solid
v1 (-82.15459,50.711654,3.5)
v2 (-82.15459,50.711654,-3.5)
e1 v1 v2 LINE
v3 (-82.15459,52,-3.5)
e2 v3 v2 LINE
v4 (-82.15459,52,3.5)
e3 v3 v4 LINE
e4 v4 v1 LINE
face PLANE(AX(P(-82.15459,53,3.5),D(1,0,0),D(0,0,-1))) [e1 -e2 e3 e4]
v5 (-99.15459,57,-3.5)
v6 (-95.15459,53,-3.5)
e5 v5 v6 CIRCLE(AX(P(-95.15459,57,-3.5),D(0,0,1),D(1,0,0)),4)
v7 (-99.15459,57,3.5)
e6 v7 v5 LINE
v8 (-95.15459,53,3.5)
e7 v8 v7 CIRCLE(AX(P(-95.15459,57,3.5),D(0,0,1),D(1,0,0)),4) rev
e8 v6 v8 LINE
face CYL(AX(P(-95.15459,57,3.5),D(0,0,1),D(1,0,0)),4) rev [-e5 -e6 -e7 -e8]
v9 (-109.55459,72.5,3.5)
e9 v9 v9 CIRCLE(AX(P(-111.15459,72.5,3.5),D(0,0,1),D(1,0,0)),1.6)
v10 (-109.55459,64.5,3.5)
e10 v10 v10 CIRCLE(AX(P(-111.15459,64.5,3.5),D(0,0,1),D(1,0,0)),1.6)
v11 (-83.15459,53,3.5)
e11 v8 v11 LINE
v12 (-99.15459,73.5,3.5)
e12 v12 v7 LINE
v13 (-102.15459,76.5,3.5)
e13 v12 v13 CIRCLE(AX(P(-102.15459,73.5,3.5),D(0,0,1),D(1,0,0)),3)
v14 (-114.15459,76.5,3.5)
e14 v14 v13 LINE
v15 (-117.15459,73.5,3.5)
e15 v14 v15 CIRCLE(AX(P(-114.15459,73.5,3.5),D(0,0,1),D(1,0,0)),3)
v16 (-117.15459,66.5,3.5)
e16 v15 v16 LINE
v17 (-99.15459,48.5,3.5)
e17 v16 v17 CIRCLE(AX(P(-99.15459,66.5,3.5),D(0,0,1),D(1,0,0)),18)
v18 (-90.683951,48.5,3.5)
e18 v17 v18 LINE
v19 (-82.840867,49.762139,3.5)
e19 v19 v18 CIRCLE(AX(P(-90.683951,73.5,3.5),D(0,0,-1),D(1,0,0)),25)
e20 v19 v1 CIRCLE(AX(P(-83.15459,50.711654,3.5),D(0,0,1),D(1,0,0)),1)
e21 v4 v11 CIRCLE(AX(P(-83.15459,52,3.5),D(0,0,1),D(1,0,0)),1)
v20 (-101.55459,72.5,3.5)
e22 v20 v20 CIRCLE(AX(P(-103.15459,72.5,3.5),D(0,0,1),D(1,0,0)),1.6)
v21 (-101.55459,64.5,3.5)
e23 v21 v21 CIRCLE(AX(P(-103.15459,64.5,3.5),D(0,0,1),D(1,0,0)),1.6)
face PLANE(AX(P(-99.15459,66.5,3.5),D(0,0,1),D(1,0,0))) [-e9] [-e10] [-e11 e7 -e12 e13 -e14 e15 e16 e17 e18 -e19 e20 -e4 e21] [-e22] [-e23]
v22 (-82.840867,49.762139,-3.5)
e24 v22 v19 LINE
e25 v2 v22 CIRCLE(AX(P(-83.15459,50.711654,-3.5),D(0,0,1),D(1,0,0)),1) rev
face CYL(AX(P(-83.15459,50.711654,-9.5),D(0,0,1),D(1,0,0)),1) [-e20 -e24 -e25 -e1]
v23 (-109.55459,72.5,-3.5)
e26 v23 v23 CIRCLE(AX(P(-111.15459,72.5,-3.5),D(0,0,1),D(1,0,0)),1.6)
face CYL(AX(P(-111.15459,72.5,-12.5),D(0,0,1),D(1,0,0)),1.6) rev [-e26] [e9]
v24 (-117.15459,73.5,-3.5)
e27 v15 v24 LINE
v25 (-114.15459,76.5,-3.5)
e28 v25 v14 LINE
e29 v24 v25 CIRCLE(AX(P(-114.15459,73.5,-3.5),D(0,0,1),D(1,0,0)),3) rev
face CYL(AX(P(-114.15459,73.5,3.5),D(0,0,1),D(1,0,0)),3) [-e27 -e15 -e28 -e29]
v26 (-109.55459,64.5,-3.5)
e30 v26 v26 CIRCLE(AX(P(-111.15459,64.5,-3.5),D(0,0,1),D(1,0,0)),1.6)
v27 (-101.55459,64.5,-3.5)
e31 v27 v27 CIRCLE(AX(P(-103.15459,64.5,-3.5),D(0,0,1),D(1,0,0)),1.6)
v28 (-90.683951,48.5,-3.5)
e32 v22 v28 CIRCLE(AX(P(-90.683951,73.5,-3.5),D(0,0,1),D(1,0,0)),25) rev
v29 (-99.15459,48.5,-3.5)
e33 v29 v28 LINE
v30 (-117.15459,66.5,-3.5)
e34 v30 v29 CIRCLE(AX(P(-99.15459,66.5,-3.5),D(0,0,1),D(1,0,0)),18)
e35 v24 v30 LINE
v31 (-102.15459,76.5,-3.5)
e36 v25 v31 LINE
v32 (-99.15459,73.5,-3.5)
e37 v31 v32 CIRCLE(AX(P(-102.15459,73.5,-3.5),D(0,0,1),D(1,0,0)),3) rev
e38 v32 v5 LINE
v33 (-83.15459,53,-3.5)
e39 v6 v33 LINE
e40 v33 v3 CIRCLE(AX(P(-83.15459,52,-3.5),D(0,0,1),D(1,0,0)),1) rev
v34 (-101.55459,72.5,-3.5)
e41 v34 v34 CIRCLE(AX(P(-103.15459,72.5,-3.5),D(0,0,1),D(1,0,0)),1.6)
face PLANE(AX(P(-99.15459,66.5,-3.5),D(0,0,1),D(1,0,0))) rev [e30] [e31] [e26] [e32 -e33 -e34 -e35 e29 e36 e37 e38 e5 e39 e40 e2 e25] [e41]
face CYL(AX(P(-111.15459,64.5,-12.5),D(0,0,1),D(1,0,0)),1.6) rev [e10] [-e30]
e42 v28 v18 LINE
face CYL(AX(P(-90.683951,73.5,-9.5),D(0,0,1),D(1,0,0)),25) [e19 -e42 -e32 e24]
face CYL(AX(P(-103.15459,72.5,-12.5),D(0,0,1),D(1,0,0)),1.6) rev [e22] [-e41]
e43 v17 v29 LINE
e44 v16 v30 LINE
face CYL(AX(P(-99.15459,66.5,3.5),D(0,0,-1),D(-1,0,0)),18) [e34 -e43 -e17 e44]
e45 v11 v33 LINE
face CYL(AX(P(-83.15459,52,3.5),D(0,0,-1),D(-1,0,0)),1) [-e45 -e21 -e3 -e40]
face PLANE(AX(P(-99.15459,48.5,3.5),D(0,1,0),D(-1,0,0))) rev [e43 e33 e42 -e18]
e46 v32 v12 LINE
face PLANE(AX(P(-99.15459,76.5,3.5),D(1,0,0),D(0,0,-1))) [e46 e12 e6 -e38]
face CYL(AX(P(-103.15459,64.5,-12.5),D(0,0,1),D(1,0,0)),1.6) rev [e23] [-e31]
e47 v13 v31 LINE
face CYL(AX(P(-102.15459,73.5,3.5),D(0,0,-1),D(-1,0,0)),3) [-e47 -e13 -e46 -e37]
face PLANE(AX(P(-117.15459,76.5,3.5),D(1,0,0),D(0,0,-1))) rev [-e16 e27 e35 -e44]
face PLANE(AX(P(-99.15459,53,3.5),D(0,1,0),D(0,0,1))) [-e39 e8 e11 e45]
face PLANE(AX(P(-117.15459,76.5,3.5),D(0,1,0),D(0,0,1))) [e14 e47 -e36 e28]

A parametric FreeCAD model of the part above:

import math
import FreeCAD as App
import Part
import Sketcher

V = App.Vector


def edges_at(feature, points):
    """Names of the edges that pass closest to the given points."""
    edges = feature.Shape.Edges
    near = lambda p: min(range(len(edges)), key=lambda i: edges[i].distToShape(Part.Vertex(*p))[0])
    return sorted({f"Edge{near(p) + 1}" for p in points})

doc = App.newDocument("Part")
body = doc.addObject("PartDesign::Body", "Body")

# Sketch on XY plane
sketch1 = body.newObject("Sketcher::SketchObject", "Sketch")
sketch1.AttachmentSupport = (doc.getObject("XY_Plane"), [""])
sketch1.MapMode = "FlatFace"
sketch1.addGeometry([
    Part.LineSegment(V(-117.2, 76.5, 0), V(-117.2, 66.5, 0)),  # 0
    Part.ArcOfCircle(Part.Circle(V(-99.2, 66.5, 0), V(0, 0, 1), 18), math.radians(180), math.radians(270)),  # 1
    Part.LineSegment(V(-99.2, 48.5, 0), V(-82.2, 48.5, 0)),  # 2
    Part.LineSegment(V(-82.2, 48.5, 0), V(-82.2, 53, 0)),  # 3
    Part.LineSegment(V(-82.2, 53, 0), V(-99.2, 53, 0)),  # 4
    Part.LineSegment(V(-99.2, 53, 0), V(-99.2, 76.5, 0)),  # 5
    Part.LineSegment(V(-99.2, 76.5, 0), V(-117.2, 76.5, 0)),  # 6
], False)
sketch1.addConstraint([
    Sketcher.Constraint("Tangent", 0, 2, 1, 1),
    Sketcher.Constraint("Tangent", 1, 2, 2, 1),
    Sketcher.Constraint("Coincident", 2, 2, 3, 1),
    Sketcher.Constraint("Coincident", 3, 2, 4, 1),
    Sketcher.Constraint("Coincident", 4, 2, 5, 1),
    Sketcher.Constraint("Coincident", 5, 2, 6, 1),
    Sketcher.Constraint("Coincident", 6, 2, 0, 1),
    Sketcher.Constraint("Vertical", 0),
    Sketcher.Constraint("Horizontal", 2),
    Sketcher.Constraint("Vertical", 3),
    Sketcher.Constraint("Horizontal", 4),
    Sketcher.Constraint("Vertical", 5),
    Sketcher.Constraint("Horizontal", 6),
    Sketcher.Constraint("Vertical", 1, 2, 4, 2),
    Sketcher.Constraint("Radius", 1, 18.0),
    Sketcher.Constraint("DistanceX", 2, 1, 2, 2, 17.0),
    Sketcher.Constraint("DistanceY", 0, 2, 0, 1, 10.0),
    Sketcher.Constraint("DistanceY", 3, 1, 3, 2, 4.5),
    Sketcher.Constraint("DistanceY", -1, 1, 3, 2, 53.0),
    Sketcher.Constraint("DistanceX", 1, 3, -1, 1, 99.15459),
])
pad1 = body.newObject("PartDesign::Pad", "Pad")
pad1.Profile = sketch1
pad1.Length = 7
pad1.Midplane = True

# Sketch on XY plane
sketch2 = body.newObject("Sketcher::SketchObject", "Sketch001")
sketch2.AttachmentSupport = (doc.getObject("XY_Plane"), [""])
sketch2.MapMode = "FlatFace"
sketch2.AttachmentOffset = App.Placement(V(0, 0, 3.5), App.Rotation())
sketch2.addGeometry([
    Part.Circle(V(-103.2, 72.5, 0), V(0, 0, 1), 1.6),
    Part.Circle(V(-111.2, 72.5, 0), V(0, 0, 1), 1.6),
    Part.Circle(V(-111.2, 64.5, 0), V(0, 0, 1), 1.6),
    Part.Circle(V(-103.2, 64.5, 0), V(0, 0, 1), 1.6),
], False)
sketch2.addConstraint([
    Sketcher.Constraint("Equal", 0, 1),
    Sketcher.Constraint("Equal", 1, 2),
    Sketcher.Constraint("Equal", 2, 3),
    Sketcher.Constraint("Horizontal", 0, 3, 1, 3),
    Sketcher.Constraint("Horizontal", 2, 3, 3, 3),
    Sketcher.Constraint("Vertical", 1, 3, 2, 3),
    Sketcher.Constraint("Vertical", 0, 3, 3, 3),
    Sketcher.Constraint("Diameter", 0, 3.2),
    Sketcher.Constraint("DistanceX", 1, 3, 0, 3, 8.0),
    Sketcher.Constraint("DistanceY", 2, 3, 1, 3, 8.0),
    Sketcher.Constraint("DistanceY", -1, 1, 0, 3, 72.5),
    Sketcher.Constraint("DistanceX", 0, 3, -1, 1, 103.15459),
])
pocket1 = body.newObject("PartDesign::Pocket", "Pocket")
pocket1.Profile = sketch2
pocket1.Length = 16

# Sketch on XY plane
sketch3 = body.newObject("Sketcher::SketchObject", "Sketch002")
sketch3.AttachmentSupport = (doc.getObject("XY_Plane"), [""])
sketch3.MapMode = "FlatFace"
sketch3.AttachmentOffset = App.Placement(V(0, 0, 3.5), App.Rotation())
sketch3.addGeometry([
    Part.LineSegment(V(-90.7, 48.5, 0), V(-90.7, 46.6, 0)),
    Part.LineSegment(V(-90.7, 46.6, 0), V(-65.7, 46.6, 0)),
    Part.LineSegment(V(-65.7, 46.6, 0), V(-65.7, 73.5, 0)),
    Part.ArcOfCircle(Part.Circle(V(-90.7, 73.5, 0), V(0, 0, 1), 25), math.radians(-90), math.radians(0)),
], False)
sketch3.addConstraint([
    Sketcher.Constraint("Coincident", 0, 2, 1, 1),
    Sketcher.Constraint("Coincident", 1, 2, 2, 1),
    Sketcher.Constraint("Tangent", 2, 2, 3, 2),
    Sketcher.Constraint("Coincident", 3, 1, 0, 1),
    Sketcher.Constraint("Vertical", 0),
    Sketcher.Constraint("Horizontal", 1),
    Sketcher.Constraint("Vertical", 2),
    Sketcher.Constraint("Vertical", 3, 3, 0, 2),
    Sketcher.Constraint("Radius", 3, 25.0),
    Sketcher.Constraint("DistanceY", -1, 1, 3, 3, 73.5),
    Sketcher.Constraint("DistanceY", 0, 2, 0, 1, 1.87258),
    Sketcher.Constraint("DistanceX", 3, 3, -1, 1, 90.683951),
])
pocket2 = body.newObject("PartDesign::Pocket", "Pocket001")
pocket2.Profile = sketch3
pocket2.Length = 13
doc.recompute()

fillet = body.newObject("PartDesign::Fillet", "Fillet")
fillet.Base = (pocket2, edges_at(pocket2, [(-82.155, 53, 0), (-82.155, 50, 0)]))
fillet.Radius = 1
doc.recompute()

fillet2 = body.newObject("PartDesign::Fillet", "Fillet001")
fillet2.Base = (fillet, edges_at(fillet, [(-117.155, 76.5, 0), (-99.155, 76.5, 0)]))
fillet2.Radius = 3
doc.recompute()

fillet3 = body.newObject("PartDesign::Fillet", "Fillet002")
fillet3.Base = (fillet2, edges_at(fillet2, [(-99.155, 53, 0)]))
fillet3.Radius = 4

doc.recompute()
